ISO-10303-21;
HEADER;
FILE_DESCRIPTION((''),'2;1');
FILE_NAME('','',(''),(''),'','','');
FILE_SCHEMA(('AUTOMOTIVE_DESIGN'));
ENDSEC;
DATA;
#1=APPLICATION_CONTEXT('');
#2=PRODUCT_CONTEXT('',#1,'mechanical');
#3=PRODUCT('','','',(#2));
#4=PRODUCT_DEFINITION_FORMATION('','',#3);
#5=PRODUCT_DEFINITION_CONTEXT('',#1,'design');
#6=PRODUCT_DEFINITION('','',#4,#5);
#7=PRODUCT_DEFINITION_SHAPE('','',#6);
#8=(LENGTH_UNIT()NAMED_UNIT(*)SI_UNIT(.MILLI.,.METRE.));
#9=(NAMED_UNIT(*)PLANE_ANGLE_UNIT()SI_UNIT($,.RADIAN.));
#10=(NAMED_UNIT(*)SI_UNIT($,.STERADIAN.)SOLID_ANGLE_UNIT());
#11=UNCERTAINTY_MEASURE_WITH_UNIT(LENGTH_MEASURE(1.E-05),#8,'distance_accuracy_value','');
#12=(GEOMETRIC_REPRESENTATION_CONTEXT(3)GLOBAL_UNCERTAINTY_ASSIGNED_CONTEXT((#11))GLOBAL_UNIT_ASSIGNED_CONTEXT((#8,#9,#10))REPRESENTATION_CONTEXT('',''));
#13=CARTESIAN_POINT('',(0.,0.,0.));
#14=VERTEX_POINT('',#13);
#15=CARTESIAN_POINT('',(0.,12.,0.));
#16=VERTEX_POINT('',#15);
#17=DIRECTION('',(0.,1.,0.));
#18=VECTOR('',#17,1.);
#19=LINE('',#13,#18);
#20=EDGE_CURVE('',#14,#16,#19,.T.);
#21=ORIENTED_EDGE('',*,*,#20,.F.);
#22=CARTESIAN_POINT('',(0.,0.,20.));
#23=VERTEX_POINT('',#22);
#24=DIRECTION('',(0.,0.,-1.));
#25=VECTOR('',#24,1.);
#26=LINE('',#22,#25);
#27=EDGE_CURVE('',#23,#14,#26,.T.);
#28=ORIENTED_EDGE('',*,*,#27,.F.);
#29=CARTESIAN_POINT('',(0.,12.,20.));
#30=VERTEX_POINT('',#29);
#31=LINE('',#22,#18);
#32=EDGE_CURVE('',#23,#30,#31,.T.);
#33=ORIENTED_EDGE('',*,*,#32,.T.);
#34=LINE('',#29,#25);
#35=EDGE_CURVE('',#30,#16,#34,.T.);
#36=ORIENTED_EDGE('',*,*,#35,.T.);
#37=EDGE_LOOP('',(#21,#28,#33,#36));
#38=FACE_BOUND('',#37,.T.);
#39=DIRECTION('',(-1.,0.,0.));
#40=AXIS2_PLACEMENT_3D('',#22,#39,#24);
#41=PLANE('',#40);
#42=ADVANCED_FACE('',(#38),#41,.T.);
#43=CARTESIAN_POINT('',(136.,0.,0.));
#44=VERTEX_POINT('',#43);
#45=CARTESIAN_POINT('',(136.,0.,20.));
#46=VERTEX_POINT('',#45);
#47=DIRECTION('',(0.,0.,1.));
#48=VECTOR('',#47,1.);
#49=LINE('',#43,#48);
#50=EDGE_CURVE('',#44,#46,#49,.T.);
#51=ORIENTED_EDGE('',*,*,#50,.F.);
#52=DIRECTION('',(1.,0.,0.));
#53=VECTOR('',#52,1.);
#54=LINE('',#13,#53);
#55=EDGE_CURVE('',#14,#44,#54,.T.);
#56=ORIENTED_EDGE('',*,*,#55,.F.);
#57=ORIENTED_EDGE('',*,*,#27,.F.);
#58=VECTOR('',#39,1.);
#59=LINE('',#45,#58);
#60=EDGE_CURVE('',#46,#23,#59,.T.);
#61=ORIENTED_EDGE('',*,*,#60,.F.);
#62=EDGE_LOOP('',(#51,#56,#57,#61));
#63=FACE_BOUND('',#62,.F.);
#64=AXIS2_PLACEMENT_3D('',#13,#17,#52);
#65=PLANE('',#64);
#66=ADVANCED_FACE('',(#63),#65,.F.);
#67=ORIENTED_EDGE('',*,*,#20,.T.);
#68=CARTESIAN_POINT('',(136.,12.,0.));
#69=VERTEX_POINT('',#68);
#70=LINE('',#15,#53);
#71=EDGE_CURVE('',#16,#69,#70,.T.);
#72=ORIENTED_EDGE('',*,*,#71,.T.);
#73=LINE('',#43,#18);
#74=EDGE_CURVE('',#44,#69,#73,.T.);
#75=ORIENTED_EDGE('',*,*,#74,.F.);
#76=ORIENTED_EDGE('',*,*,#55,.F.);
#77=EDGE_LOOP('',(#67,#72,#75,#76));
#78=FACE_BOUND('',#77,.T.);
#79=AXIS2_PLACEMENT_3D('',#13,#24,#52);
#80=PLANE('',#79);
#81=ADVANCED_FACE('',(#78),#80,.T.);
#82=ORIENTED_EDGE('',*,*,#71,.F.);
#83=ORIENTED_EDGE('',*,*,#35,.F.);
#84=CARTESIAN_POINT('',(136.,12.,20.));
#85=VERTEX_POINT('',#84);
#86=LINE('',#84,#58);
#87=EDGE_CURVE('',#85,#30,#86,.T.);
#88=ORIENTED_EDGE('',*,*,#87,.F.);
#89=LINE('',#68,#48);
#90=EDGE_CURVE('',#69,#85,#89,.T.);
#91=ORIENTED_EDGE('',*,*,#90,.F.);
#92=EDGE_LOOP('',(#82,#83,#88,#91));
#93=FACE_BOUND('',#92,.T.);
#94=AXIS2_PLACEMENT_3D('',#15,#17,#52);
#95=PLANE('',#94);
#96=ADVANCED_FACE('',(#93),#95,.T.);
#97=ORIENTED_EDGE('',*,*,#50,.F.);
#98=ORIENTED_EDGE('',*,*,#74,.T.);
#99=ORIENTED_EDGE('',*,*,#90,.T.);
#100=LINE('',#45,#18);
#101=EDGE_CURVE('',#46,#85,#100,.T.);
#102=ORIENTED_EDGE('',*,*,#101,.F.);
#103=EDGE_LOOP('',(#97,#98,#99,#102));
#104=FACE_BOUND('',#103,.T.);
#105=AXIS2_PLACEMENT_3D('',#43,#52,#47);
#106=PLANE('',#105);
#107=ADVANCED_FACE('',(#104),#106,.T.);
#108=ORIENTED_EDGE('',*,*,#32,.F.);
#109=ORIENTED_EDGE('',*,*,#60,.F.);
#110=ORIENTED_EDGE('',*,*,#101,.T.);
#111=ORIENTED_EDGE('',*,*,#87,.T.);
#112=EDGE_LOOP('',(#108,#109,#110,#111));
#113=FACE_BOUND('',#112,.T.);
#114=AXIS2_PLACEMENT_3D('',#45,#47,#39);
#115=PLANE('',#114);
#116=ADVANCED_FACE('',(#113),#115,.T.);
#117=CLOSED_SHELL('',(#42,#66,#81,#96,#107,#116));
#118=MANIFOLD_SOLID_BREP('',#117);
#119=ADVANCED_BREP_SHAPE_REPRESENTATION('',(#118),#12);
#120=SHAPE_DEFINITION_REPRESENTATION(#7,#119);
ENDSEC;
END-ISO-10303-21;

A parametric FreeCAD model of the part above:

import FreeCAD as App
import Part
import Sketcher
from FreeCAD import Vector


def add_polygon(sketch, points):
    """Adds a closed chain of lines whose ends are joined by coincident constraints."""
    first, n = sketch.GeometryCount, len(points)
    for a, b in zip(points, points[1:] + points[:1]):
        sketch.addGeometry(Part.LineSegment(App.Vector(*a, 0), App.Vector(*b, 0)), False)
    for i in range(n):
        sketch.addConstraint(Sketcher.Constraint("Coincident", first + i, 2, first + (i + 1) % n, 1))

doc = App.newDocument("Part")
body = doc.addObject("PartDesign::Body", "Body")

# Sketch on XZ plane
sketch1 = body.newObject("Sketcher::SketchObject", "Sketch")
sketch1.AttachmentSupport = (doc.getObject("XZ_Plane"), [""])
sketch1.MapMode = "FlatFace"
add_polygon(sketch1, [(136, 0), (0, 0), (0, 20), (136, 20)])  # lines 0-3
sketch1.addConstraint(Sketcher.Constraint("Horizontal", 0))
sketch1.addConstraint(Sketcher.Constraint("Vertical", 1))
sketch1.addConstraint(Sketcher.Constraint("Horizontal", 2))
sketch1.addConstraint(Sketcher.Constraint("Vertical", 3))
sketch1.addConstraint(Sketcher.Constraint("Coincident", 0, 2, -1, 1))
sketch1.addConstraint(Sketcher.Constraint("DistanceX", 0, 2, 0, 1, 136.0))
sketch1.addConstraint(Sketcher.Constraint("DistanceY", 1, 1, 1, 2, 20.0))
pad1 = body.newObject("PartDesign::Pad", "Pad")
pad1.Profile = sketch1
pad1.Length = 12
pad1.Reversed = True

doc.recompute()
